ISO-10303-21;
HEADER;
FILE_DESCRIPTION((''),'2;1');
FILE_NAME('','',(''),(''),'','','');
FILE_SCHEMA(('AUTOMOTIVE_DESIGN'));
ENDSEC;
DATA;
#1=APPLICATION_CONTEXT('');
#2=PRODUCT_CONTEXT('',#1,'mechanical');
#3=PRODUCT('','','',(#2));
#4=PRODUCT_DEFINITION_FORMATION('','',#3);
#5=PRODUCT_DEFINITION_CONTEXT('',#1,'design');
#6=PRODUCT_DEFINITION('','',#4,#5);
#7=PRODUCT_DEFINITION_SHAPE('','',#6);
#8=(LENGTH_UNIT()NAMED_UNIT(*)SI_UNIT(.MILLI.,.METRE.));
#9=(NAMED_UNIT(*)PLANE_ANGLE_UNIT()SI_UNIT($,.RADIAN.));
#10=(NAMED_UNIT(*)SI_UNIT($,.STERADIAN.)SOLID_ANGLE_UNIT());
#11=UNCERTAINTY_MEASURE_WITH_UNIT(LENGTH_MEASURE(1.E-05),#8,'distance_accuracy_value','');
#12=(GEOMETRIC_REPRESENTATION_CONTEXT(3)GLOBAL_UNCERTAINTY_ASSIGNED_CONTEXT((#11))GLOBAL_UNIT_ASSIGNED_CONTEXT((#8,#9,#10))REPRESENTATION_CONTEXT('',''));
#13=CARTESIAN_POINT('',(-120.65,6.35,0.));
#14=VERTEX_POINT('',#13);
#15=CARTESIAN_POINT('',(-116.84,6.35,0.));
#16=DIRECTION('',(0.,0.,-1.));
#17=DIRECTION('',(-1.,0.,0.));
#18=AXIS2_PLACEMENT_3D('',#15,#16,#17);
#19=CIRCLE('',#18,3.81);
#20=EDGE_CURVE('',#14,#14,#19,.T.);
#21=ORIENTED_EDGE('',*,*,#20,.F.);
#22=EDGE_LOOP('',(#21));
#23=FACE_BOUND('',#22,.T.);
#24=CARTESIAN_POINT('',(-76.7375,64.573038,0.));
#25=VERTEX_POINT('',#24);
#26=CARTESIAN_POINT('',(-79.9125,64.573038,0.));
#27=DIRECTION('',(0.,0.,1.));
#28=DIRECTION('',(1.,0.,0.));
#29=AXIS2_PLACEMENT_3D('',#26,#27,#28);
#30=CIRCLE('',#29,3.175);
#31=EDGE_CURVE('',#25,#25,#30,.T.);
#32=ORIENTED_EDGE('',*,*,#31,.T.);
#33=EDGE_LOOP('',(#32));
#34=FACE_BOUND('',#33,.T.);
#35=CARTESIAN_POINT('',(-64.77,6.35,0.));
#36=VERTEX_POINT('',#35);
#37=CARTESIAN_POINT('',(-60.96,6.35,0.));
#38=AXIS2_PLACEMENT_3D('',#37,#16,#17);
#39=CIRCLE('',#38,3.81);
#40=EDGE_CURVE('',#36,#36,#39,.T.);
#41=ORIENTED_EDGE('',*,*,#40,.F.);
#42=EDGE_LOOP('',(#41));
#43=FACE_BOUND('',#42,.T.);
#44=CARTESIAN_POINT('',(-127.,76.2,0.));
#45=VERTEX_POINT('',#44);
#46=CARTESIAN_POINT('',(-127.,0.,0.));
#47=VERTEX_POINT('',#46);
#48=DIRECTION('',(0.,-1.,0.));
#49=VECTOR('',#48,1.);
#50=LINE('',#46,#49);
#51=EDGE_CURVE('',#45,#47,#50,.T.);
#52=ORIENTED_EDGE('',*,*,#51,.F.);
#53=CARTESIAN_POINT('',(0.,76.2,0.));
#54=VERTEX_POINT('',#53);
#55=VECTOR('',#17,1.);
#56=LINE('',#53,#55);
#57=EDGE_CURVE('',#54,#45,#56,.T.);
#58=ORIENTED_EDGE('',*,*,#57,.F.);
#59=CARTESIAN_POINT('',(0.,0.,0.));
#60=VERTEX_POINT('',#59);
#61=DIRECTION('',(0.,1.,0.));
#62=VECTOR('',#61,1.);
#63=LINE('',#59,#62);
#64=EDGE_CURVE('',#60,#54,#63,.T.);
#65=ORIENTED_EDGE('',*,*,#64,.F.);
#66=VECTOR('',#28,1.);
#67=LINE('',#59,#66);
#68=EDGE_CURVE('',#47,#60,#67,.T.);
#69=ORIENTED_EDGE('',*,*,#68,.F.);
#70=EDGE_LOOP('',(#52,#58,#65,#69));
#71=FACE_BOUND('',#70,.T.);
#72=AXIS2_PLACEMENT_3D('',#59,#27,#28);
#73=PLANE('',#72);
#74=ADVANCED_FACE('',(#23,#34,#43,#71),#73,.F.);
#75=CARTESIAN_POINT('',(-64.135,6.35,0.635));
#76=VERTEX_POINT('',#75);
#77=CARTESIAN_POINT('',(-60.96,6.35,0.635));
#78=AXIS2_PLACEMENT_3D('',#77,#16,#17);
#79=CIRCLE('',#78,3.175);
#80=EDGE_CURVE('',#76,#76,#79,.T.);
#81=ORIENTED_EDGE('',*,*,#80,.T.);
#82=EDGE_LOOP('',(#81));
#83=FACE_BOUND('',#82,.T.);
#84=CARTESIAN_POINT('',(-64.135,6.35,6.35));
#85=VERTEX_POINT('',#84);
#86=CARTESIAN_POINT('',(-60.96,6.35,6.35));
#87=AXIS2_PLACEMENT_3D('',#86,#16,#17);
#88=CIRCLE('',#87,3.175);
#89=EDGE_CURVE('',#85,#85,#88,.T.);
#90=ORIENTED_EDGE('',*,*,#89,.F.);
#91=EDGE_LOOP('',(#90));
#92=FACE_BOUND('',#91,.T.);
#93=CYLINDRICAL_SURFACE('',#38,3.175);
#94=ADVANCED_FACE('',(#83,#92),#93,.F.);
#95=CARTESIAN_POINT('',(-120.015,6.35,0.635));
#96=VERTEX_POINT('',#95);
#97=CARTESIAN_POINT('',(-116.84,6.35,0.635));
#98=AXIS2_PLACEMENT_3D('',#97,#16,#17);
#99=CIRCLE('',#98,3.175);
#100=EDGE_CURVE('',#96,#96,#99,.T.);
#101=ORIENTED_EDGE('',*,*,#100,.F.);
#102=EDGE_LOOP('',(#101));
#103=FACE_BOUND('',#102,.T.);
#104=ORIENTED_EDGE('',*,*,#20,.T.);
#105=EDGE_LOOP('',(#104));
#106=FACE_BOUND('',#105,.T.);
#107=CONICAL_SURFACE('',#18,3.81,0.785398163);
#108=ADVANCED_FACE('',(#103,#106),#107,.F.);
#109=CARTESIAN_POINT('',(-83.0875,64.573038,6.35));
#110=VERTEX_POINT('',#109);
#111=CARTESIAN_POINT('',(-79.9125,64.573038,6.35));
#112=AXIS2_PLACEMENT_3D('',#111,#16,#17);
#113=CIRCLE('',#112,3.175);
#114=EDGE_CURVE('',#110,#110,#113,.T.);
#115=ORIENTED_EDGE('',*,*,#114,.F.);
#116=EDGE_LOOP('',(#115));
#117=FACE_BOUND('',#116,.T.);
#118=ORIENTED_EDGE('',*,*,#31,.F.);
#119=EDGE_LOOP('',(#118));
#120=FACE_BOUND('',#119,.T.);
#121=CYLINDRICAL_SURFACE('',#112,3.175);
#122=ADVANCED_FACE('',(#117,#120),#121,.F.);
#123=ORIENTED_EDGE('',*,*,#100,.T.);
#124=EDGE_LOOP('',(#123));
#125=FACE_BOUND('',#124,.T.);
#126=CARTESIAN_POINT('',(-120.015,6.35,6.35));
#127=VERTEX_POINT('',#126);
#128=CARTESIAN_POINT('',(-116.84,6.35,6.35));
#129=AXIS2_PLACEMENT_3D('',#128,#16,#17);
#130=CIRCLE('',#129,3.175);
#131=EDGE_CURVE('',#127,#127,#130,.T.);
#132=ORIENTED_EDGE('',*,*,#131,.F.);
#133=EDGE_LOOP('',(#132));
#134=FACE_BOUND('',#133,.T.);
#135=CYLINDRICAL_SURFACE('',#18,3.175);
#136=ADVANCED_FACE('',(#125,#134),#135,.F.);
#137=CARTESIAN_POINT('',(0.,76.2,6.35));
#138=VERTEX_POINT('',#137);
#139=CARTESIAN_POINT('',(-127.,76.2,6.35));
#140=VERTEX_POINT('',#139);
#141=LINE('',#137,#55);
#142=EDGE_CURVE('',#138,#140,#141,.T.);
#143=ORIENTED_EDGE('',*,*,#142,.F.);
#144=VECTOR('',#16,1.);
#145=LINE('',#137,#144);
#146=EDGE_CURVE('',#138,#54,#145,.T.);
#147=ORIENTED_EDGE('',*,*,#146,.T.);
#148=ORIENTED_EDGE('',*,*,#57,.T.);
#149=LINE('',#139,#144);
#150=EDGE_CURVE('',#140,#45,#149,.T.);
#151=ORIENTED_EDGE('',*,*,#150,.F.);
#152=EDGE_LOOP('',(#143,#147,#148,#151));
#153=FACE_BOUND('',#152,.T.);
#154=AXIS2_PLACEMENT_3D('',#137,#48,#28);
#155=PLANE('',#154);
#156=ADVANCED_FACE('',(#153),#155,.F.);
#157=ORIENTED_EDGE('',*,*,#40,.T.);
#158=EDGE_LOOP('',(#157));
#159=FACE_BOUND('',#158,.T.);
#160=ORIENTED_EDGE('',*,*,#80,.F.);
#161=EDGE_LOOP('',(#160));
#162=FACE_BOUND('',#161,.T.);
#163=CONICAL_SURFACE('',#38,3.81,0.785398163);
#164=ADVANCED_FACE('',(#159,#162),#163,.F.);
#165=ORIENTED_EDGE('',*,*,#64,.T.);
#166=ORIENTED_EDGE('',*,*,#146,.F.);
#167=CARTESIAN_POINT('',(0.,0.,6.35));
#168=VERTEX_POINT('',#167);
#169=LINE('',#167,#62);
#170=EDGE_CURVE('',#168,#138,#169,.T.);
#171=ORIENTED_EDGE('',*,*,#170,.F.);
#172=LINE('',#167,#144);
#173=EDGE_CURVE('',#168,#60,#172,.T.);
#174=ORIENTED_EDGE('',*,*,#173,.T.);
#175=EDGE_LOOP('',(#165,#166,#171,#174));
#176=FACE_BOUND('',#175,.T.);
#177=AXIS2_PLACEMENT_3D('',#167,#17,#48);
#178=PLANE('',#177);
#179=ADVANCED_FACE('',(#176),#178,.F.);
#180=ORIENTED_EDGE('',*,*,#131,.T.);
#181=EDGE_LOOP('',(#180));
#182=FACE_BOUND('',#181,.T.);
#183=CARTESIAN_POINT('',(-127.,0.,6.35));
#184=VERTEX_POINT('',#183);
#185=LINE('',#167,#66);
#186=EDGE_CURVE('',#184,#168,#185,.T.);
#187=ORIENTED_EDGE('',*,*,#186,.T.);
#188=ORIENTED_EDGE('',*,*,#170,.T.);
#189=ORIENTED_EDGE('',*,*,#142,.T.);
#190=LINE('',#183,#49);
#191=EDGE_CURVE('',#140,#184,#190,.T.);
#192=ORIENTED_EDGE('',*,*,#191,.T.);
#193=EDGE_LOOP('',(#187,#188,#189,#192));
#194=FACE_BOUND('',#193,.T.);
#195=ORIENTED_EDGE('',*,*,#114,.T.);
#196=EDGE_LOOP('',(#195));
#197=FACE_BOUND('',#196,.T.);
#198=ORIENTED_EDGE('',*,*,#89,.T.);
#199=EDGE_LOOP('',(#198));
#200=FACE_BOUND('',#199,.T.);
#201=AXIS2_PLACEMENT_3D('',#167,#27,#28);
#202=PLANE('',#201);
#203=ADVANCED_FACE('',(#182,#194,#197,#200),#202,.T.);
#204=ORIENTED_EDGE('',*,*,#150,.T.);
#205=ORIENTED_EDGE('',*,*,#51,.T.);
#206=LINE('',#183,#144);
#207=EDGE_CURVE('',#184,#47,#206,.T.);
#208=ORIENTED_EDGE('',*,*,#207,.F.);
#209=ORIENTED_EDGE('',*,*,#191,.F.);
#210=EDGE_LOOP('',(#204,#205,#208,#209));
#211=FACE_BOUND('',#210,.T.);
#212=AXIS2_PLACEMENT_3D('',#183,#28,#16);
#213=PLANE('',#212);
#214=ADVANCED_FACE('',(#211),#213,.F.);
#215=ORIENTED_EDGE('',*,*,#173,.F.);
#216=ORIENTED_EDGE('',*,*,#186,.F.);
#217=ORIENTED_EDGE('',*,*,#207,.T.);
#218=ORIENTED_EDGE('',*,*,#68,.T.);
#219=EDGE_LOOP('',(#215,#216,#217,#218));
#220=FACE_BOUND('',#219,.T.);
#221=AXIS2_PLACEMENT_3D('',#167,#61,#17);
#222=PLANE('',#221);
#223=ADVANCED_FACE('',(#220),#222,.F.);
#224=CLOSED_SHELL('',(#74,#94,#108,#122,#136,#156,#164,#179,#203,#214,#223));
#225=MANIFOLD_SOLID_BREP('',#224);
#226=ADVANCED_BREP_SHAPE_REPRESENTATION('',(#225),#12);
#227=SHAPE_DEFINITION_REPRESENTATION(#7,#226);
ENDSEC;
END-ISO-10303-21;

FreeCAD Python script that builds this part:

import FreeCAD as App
import Part
import Sketcher
from FreeCAD import Vector
Q = App.Units.Quantity

doc = App.newDocument("Part")
body = doc.addObject("PartDesign::Body", "Body")

# Sketch on XY plane
sketch1 = body.newObject("Sketcher::SketchObject", "Sketch")
sketch1.AttachmentSupport = (doc.getObject("XY_Plane"), [""])
sketch1.MapMode = "FlatFace"
sketch1.addGeometry([
    Part.LineSegment(Vector(-127, 76, 0), Vector(-127, 0, 0)),
    Part.LineSegment(Vector(-127, 0, 0), Vector(0, 0, 0)),
    Part.LineSegment(Vector(0, 0, 0), Vector(0, 76, 0)),
    Part.LineSegment(Vector(0, 76, 0), Vector(-127, 76, 0)),
], False)
sketch1.addConstraint([
    Sketcher.Constraint("Coincident", 0, 2, 1, 1),
    Sketcher.Constraint("Coincident", 1, 2, 2, 1),
    Sketcher.Constraint("Coincident", 2, 2, 3, 1),
    Sketcher.Constraint("Coincident", 3, 2, 0, 1),
    Sketcher.Constraint("Vertical", 0),
    Sketcher.Constraint("Horizontal", 1),
    Sketcher.Constraint("Vertical", 2),
    Sketcher.Constraint("Horizontal", 3),
    Sketcher.Constraint("Coincident", 1, 2, -1, 1),
    Sketcher.Constraint("DistanceX", 1, 1, 1, 2, Q("5 in")),
    Sketcher.Constraint("DistanceY", 0, 2, 0, 1, Q("3 in")),
])
pad1 = body.newObject("PartDesign::Pad", "Pad")
pad1.Profile = sketch1
pad1.Length = Q("0.25 in")

# Sketch on XY plane
sketch2 = body.newObject("Sketcher::SketchObject", "Sketch001")
sketch2.AttachmentSupport = (doc.getObject("XY_Plane"), [""])
sketch2.MapMode = "FlatFace"
sketch2.addGeometry(Part.Circle(Vector(-79.9, 64.6, 0), Vector(0, 0, 1), 3.2), False)
sketch2.addConstraint([
    Sketcher.Constraint("Diameter", 0, Q("0.25 in")),
    Sketcher.Constraint("DistanceX", 0, 3, -1, 1, Q("79.9125 mm")),
    Sketcher.Constraint("DistanceY", -1, 1, 0, 3, Q("64.573038 mm")),
])
pocket1 = body.newObject("PartDesign::Pocket", "Pocket")
pocket1.Profile = sketch2
pocket1.Type = "ThroughAll"
pocket1.Midplane = True

# Sketch on XY plane
sketch3 = body.newObject("Sketcher::SketchObject", "Sketch002")
sketch3.AttachmentSupport = (doc.getObject("XY_Plane"), [""])
sketch3.MapMode = "FlatFace"
sketch3.addGeometry([
    Part.Circle(Vector(-116.8, 6.3, 0), Vector(0, 0, 1), 3.2),
    Part.Circle(Vector(-61, 6.3, 0), Vector(0, 0, 1), 3.2),
], False)
sketch3.addConstraint([
    Sketcher.Constraint("Equal", 0, 1),
    Sketcher.Constraint("Horizontal", 0, 3, 1, 3),
    Sketcher.Constraint("Diameter", 0, Q("0.25 in")),
    Sketcher.Constraint("DistanceX", 0, 3, -1, 1, Q("4.6 in")),
    Sketcher.Constraint("DistanceX", 1, 3, -1, 1, Q("2.4 in")),
    Sketcher.Constraint("DistanceY", -1, 1, 0, 3, Q("0.25 in")),
])
doc.recompute()
hole = body.newObject("PartDesign::Hole", "Hole")
hole.Profile = sketch3
hole.ThreadType = "None"
hole.Diameter = Q("0.25 in")
hole.DepthType = "ThroughAll"
hole.HoleCutType = "Countersink"
hole.HoleCutDiameter = Q("0.3 in")
hole.HoleCutCountersinkAngle = 90
hole.Reversed = True

doc.recompute()
